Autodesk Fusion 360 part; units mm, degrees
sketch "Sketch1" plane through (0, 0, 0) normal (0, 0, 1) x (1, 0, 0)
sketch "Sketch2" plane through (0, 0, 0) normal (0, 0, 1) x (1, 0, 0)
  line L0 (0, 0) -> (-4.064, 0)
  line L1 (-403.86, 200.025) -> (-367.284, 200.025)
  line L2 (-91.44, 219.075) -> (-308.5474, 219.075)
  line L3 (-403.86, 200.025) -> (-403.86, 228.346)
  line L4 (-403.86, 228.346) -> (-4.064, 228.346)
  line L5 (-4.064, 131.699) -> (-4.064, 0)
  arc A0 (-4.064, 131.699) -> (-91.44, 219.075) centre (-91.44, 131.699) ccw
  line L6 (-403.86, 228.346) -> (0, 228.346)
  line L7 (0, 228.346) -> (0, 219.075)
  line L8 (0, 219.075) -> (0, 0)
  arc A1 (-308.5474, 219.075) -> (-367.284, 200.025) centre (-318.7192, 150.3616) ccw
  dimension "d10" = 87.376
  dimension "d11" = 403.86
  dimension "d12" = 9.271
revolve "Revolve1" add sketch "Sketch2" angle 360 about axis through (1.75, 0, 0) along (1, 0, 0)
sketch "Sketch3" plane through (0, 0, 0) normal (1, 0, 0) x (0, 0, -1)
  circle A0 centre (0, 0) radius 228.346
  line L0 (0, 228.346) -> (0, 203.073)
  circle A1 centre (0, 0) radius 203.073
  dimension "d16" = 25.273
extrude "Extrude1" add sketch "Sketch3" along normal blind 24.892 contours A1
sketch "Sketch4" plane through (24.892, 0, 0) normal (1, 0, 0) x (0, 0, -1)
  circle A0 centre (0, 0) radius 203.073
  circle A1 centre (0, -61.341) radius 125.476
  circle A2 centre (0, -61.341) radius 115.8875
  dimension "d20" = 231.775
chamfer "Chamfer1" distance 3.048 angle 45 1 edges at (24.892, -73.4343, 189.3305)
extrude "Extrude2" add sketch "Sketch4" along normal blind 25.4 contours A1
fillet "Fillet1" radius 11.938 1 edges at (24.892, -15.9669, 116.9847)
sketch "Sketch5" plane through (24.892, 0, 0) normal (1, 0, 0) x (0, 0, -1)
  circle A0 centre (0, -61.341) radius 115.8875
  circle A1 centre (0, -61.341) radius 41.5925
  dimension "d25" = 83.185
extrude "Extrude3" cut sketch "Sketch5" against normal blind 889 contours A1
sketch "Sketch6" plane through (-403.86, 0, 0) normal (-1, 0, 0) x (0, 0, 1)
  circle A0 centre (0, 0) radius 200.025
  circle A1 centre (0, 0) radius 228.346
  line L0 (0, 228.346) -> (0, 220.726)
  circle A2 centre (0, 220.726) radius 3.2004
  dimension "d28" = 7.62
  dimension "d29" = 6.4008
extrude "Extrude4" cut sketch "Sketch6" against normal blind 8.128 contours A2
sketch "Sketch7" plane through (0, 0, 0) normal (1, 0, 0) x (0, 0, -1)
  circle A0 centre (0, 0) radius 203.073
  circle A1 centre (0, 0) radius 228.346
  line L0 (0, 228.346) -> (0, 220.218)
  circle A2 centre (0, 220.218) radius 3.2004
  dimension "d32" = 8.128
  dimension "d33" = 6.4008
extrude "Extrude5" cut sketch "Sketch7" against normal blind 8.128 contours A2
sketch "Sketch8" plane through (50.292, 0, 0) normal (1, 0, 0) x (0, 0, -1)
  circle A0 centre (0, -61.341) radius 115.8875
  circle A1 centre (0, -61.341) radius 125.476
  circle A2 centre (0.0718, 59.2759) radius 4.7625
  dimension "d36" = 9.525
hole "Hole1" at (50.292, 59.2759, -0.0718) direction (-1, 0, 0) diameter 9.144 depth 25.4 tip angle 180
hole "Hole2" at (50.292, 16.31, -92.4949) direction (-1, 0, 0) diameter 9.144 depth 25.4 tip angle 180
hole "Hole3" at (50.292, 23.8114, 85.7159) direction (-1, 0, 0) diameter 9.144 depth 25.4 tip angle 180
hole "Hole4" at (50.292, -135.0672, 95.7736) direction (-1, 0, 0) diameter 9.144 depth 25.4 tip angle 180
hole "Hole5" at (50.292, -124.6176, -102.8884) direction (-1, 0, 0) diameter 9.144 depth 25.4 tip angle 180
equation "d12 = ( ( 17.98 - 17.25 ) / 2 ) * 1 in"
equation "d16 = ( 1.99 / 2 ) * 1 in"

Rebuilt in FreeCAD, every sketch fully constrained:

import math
import FreeCAD as App
import Part
import Sketcher
from FreeCAD import Vector
Q = App.Units.Quantity


def edges_at(feature, points):
    """Names of the edges that pass closest to the given points."""
    edges = feature.Shape.Edges
    near = lambda p: min(range(len(edges)), key=lambda i: edges[i].distToShape(Part.Vertex(*p))[0])
    return sorted({f"Edge{near(p) + 1}" for p in points})

doc = App.newDocument("Part")
body = doc.addObject("PartDesign::Body", "Body")

# Sketch on XY plane
sketch1 = body.newObject("Sketcher::SketchObject", "Sketch")
sketch1.AttachmentSupport = (doc.getObject("XY_Plane"), [""])
sketch1.MapMode = "FlatFace"
sketch1.addGeometry(Part.LineSegment(Vector(-4.1, 0, 0), Vector(0, 0, 0)), False)
sketch1.addGeometry(Part.LineSegment(Vector(0, 0, 0), Vector(0, 228.3, 0)), False)
sketch1.addGeometry(Part.LineSegment(Vector(0, 228.3, 0), Vector(-403.9, 228.3, 0)), False)
sketch1.addGeometry(Part.LineSegment(Vector(-403.9, 228.3, 0), Vector(-403.9, 200, 0)), False)
sketch1.addGeometry(Part.LineSegment(Vector(-403.9, 200, 0), Vector(-367.3, 200, 0)), False)
sketch1.addGeometry(Part.ArcOfCircle(Part.Circle(Vector(-318.7, 150.4, 0), Vector(0, 0, 1), 69.5), math.radians(82), math.radians(134)), False)
sketch1.addGeometry(Part.LineSegment(Vector(-308.5, 219.1, 0), Vector(-91.4, 219.1, 0)), False)
sketch1.addGeometry(Part.ArcOfCircle(Part.Circle(Vector(-91.4, 131.7, 0), Vector(0, 0, 1), 87.4), math.radians(0), math.radians(90)), False)
sketch1.addGeometry(Part.LineSegment(Vector(-4.1, 131.7, 0), Vector(-4.1, 0, 0)), False)
sketch1.addConstraint(Sketcher.Constraint("Coincident", 0, 2, 1, 1))
sketch1.addConstraint(Sketcher.Constraint("Coincident", 1, 2, 2, 1))
sketch1.addConstraint(Sketcher.Constraint("Coincident", 2, 2, 3, 1))
sketch1.addConstraint(Sketcher.Constraint("Coincident", 3, 2, 4, 1))
sketch1.addConstraint(Sketcher.Constraint("Coincident", 4, 2, 5, 2))
sketch1.addConstraint(Sketcher.Constraint("Coincident", 5, 1, 6, 1))
sketch1.addConstraint(Sketcher.Constraint("Tangent", 6, 2, 7, 2))
sketch1.addConstraint(Sketcher.Constraint("Tangent", 7, 1, 8, 1))
sketch1.addConstraint(Sketcher.Constraint("Coincident", 8, 2, 0, 1))
sketch1.addConstraint(Sketcher.Constraint("Horizontal", 0))
sketch1.addConstraint(Sketcher.Constraint("Vertical", 1))
sketch1.addConstraint(Sketcher.Constraint("Horizontal", 2))
sketch1.addConstraint(Sketcher.Constraint("Vertical", 3))
sketch1.addConstraint(Sketcher.Constraint("Horizontal", 4))
sketch1.addConstraint(Sketcher.Constraint("Horizontal", 6))
sketch1.addConstraint(Sketcher.Constraint("Vertical", 8))
sketch1.addConstraint(Sketcher.Constraint("Coincident", 0, 2, -1, 1))
sketch1.addConstraint(Sketcher.Constraint("Radius", 7, Q("3.44 in")))
sketch1.addConstraint(Sketcher.Constraint("DistanceX", 2, 2, 2, 1, Q("15.9 in")))
sketch1.addConstraint(Sketcher.Constraint("DistanceY", 5, 1, 2, 2, Q("0.365 in")))
sketch1.addConstraint(Sketcher.Constraint("DistanceX", 0, 1, 0, 2, Q("0.16 in")))
sketch1.addConstraint(Sketcher.Constraint("DistanceX", 4, 1, 4, 2, Q("1.44 in")))
sketch1.addConstraint(Sketcher.Constraint("DistanceY", 1, 1, 1, 2, Q("8.99 in")))
sketch1.addConstraint(Sketcher.Constraint("DistanceY", 3, 2, 3, 1, Q("1.115 in")))
sketch1.addConstraint(Sketcher.Constraint("Radius", 5, 69.4622))
sketch1.addConstraint(Sketcher.Constraint("DistanceX", 5, 3, -1, 1, Q("12.548 in")))
revolution = body.newObject("PartDesign::Revolution", "Revolution")
revolution.Profile = sketch1
revolution.ReferenceAxis = (sketch1, ["H_Axis"])
revolution.Angle = 360

# Sketch on YZ plane
sketch2 = body.newObject("Sketcher::SketchObject", "Sketch001")
sketch2.AttachmentSupport = (doc.getObject("YZ_Plane"), [""])
sketch2.MapMode = "FlatFace"
sketch2.addGeometry(Part.Circle(Vector(0, 0, 0), Vector(0, 0, 1), 203), False)
sketch2.addConstraint(Sketcher.Constraint("Coincident", 0, 3, -1, 1))
sketch2.addConstraint(Sketcher.Constraint("Diameter", 0, Q("15.99 in")))
pad1 = body.newObject("PartDesign::Pad", "Pad")
pad1.Profile = sketch2
pad1.Length = Q("0.98 in")
doc.recompute()

chamfer = body.newObject("PartDesign::Chamfer", "Chamfer")
chamfer.Base = (pad1, edges_at(pad1, [(24.892, -73.434, 189.331)]))
chamfer.Size = Q("0.12 in")

# Sketch on YZ plane
sketch3 = body.newObject("Sketcher::SketchObject", "Sketch002")
sketch3.AttachmentSupport = (doc.getObject("YZ_Plane"), [""])
sketch3.MapMode = "FlatFace"
sketch3.AttachmentOffset = App.Placement(Vector(0, 0, 0.98 * 25.4), App.Rotation())
sketch3.addGeometry(Part.Circle(Vector(-61, 0, 0), Vector(0, 0, 1), 125), False)
sketch3.addGeometry(Part.Circle(Vector(-61, 0, 0), Vector(0, 0, 1), 116), False)
sketch3.addConstraint(Sketcher.Constraint("Coincident", 1, 3, 0, 3))
sketch3.addConstraint(Sketcher.Constraint("PointOnObject", 0, 3, -1))
sketch3.addConstraint(Sketcher.Constraint("Diameter", 1, Q("9.125 in")))
sketch3.addConstraint(Sketcher.Constraint("Diameter", 0, Q("9.88 in")))
sketch3.addConstraint(Sketcher.Constraint("DistanceX", 0, 3, -1, 1, Q("2.415 in")))
pad2 = body.newObject("PartDesign::Pad", "Pad001")
pad2.Profile = sketch3
pad2.Length = Q("1 in")
doc.recompute()

fillet = body.newObject("PartDesign::Fillet", "Fillet")
fillet.Base = (pad2, edges_at(pad2, [(24.892, -15.967, 116.985)]))
fillet.Radius = Q("0.47 in")

# Sketch on YZ plane
sketch4 = body.newObject("Sketcher::SketchObject", "Sketch003")
sketch4.AttachmentSupport = (doc.getObject("YZ_Plane"), [""])
sketch4.MapMode = "FlatFace"
sketch4.AttachmentOffset = App.Placement(Vector(0, 0, 0.98 * 25.4), App.Rotation())
sketch4.addGeometry(Part.Circle(Vector(-61, 0, 0), Vector(0, 0, 1), 42), False)
sketch4.addConstraint(Sketcher.Constraint("PointOnObject", 0, 3, -1))
sketch4.addConstraint(Sketcher.Constraint("Diameter", 0, Q("3.275 in")))
sketch4.addConstraint(Sketcher.Constraint("DistanceX", 0, 3, -1, 1, Q("2.415 in")))
pocket1 = body.newObject("PartDesign::Pocket", "Pocket")
pocket1.Profile = sketch4
pocket1.Length = Q("35 in")

# Sketch on YZ plane
sketch5 = body.newObject("Sketcher::SketchObject", "Sketch004")
sketch5.AttachmentSupport = (doc.getObject("YZ_Plane"), [""])
sketch5.MapMode = "FlatFace"
sketch5.AttachmentOffset = App.Placement(Vector(0, 0, -15.9 * 25.4), App.Rotation())
sketch5.addGeometry(Part.Circle(Vector(220.7, 0, 0), Vector(0, 0, 1), 3.2), False)
sketch5.addConstraint(Sketcher.Constraint("PointOnObject", 0, 3, -1))
sketch5.addConstraint(Sketcher.Constraint("Diameter", 0, Q("0.252 in")))
sketch5.addConstraint(Sketcher.Constraint("DistanceX", -1, 1, 0, 3, Q("8.69 in")))
pocket2 = body.newObject("PartDesign::Pocket", "Pocket001")
pocket2.Profile = sketch5
pocket2.Length = Q("0.32 in")
pocket2.Reversed = True

# Sketch on YZ plane
sketch6 = body.newObject("Sketcher::SketchObject", "Sketch005")
sketch6.AttachmentSupport = (doc.getObject("YZ_Plane"), [""])
sketch6.MapMode = "FlatFace"
sketch6.addGeometry(Part.Circle(Vector(220.2, 0, 0), Vector(0, 0, 1), 3.2), False)
sketch6.addConstraint(Sketcher.Constraint("PointOnObject", 0, 3, -1))
sketch6.addConstraint(Sketcher.Constraint("Diameter", 0, Q("0.252 in")))
sketch6.addConstraint(Sketcher.Constraint("DistanceX", -1, 1, 0, 3, Q("8.67 in")))
pocket3 = body.newObject("PartDesign::Pocket", "Pocket002")
pocket3.Profile = sketch6
pocket3.Length = Q("0.32 in")

# Sketch on YZ plane
sketch7 = body.newObject("Sketcher::SketchObject", "Sketch006")
sketch7.AttachmentSupport = (doc.getObject("YZ_Plane"), [""])
sketch7.MapMode = "FlatFace"
sketch7.AttachmentOffset = App.Placement(Vector(0, 0, 1.98 * 25.4), App.Rotation())
sketch7.addGeometry(Part.Circle(Vector(59.3, -0.1, 0), Vector(0, 0, 1), 4.6), False)
sketch7.addConstraint(Sketcher.Constraint("Diameter", 0, Q("0.36 in")))
sketch7.addConstraint(Sketcher.Constraint("DistanceX", -1, 1, 0, 3, Q("2.3337 in")))
sketch7.addConstraint(Sketcher.Constraint("DistanceY", 0, 3, -1, 1, 0.0718))
doc.recompute()
hole = body.newObject("PartDesign::Hole", "Hole")
hole.Profile = sketch7
hole.ThreadType = "None"
hole.Diameter = Q("0.36 in")
hole.DepthType = "Dimension"
hole.Depth = Q("1 in")
hole.DrillPoint = "Flat"

# Sketch on YZ plane
sketch8 = body.newObject("Sketcher::SketchObject", "Sketch007")
sketch8.AttachmentSupport = (doc.getObject("YZ_Plane"), [""])
sketch8.MapMode = "FlatFace"
sketch8.AttachmentOffset = App.Placement(Vector(0, 0, 1.98 * 25.4), App.Rotation())
sketch8.addGeometry(Part.Circle(Vector(16.3, -92.5, 0), Vector(0, 0, 1), 4.6), False)
sketch8.addConstraint(Sketcher.Constraint("Diameter", 0, Q("0.36 in")))
sketch8.addConstraint(Sketcher.Constraint("DistanceX", -1, 1, 0, 3, 16.31))
sketch8.addConstraint(Sketcher.Constraint("DistanceY", 0, 3, -1, 1, 92.495))
doc.recompute()
hole2 = body.newObject("PartDesign::Hole", "Hole001")
hole2.Profile = sketch8
hole2.ThreadType = "None"
hole2.Diameter = Q("0.36 in")
hole2.DepthType = "Dimension"
hole2.Depth = Q("1 in")
hole2.DrillPoint = "Flat"

# Sketch on YZ plane
sketch9 = body.newObject("Sketcher::SketchObject", "Sketch008")
sketch9.AttachmentSupport = (doc.getObject("YZ_Plane"), [""])
sketch9.MapMode = "FlatFace"
sketch9.AttachmentOffset = App.Placement(Vector(0, 0, 1.98 * 25.4), App.Rotation())
sketch9.addGeometry(Part.Circle(Vector(23.8, 85.7, 0), Vector(0, 0, 1), 4.6), False)
sketch9.addConstraint(Sketcher.Constraint("Diameter", 0, Q("0.36 in")))
sketch9.addConstraint(Sketcher.Constraint("DistanceX", -1, 1, 0, 3, 23.8114))
sketch9.addConstraint(Sketcher.Constraint("DistanceY", -1, 1, 0, 3, 85.716))
doc.recompute()
hole3 = body.newObject("PartDesign::Hole", "Hole002")
hole3.Profile = sketch9
hole3.ThreadType = "None"
hole3.Diameter = Q("0.36 in")
hole3.DepthType = "Dimension"
hole3.Depth = Q("1 in")
hole3.DrillPoint = "Flat"

# Sketch on YZ plane
sketch10 = body.newObject("Sketcher::SketchObject", "Sketch009")
sketch10.AttachmentSupport = (doc.getObject("YZ_Plane"), [""])
sketch10.MapMode = "FlatFace"
sketch10.AttachmentOffset = App.Placement(Vector(0, 0, 1.98 * 25.4), App.Rotation())
sketch10.addGeometry(Part.Circle(Vector(-135.1, 95.8, 0), Vector(0, 0, 1), 4.6), False)
sketch10.addConstraint(Sketcher.Constraint("Diameter", 0, Q("0.36 in")))
sketch10.addConstraint(Sketcher.Constraint("DistanceX", 0, 3, -1, 1, Q("5.3176 in")))
sketch10.addConstraint(Sketcher.Constraint("DistanceY", -1, 1, 0, 3, 95.7736))
doc.recompute()
hole4 = body.newObject("PartDesign::Hole", "Hole003")
hole4.Profile = sketch10
hole4.ThreadType = "None"
hole4.Diameter = Q("0.36 in")
hole4.DepthType = "Dimension"
hole4.Depth = Q("1 in")
hole4.DrillPoint = "Flat"

# Sketch on YZ plane
sketch11 = body.newObject("Sketcher::SketchObject", "Sketch010")
sketch11.AttachmentSupport = (doc.getObject("YZ_Plane"), [""])
sketch11.MapMode = "FlatFace"
sketch11.AttachmentOffset = App.Placement(Vector(0, 0, 1.98 * 25.4), App.Rotation())
sketch11.addGeometry(Part.Circle(Vector(-124.6, -102.9, 0), Vector(0, 0, 1), 4.6), False)
sketch11.addConstraint(Sketcher.Constraint("Diameter", 0, Q("0.36 in")))
sketch11.addConstraint(Sketcher.Constraint("DistanceX", 0, 3, -1, 1, Q("4.9062 in")))
sketch11.addConstraint(Sketcher.Constraint("DistanceY", 0, 3, -1, 1, 102.8884))
doc.recompute()
hole5 = body.newObject("PartDesign::Hole", "Hole004")
hole5.Profile = sketch11
hole5.ThreadType = "None"
hole5.Diameter = Q("0.36 in")
hole5.DepthType = "Dimension"
hole5.Depth = Q("1 in")
hole5.DrillPoint = "Flat"

doc.recompute()
